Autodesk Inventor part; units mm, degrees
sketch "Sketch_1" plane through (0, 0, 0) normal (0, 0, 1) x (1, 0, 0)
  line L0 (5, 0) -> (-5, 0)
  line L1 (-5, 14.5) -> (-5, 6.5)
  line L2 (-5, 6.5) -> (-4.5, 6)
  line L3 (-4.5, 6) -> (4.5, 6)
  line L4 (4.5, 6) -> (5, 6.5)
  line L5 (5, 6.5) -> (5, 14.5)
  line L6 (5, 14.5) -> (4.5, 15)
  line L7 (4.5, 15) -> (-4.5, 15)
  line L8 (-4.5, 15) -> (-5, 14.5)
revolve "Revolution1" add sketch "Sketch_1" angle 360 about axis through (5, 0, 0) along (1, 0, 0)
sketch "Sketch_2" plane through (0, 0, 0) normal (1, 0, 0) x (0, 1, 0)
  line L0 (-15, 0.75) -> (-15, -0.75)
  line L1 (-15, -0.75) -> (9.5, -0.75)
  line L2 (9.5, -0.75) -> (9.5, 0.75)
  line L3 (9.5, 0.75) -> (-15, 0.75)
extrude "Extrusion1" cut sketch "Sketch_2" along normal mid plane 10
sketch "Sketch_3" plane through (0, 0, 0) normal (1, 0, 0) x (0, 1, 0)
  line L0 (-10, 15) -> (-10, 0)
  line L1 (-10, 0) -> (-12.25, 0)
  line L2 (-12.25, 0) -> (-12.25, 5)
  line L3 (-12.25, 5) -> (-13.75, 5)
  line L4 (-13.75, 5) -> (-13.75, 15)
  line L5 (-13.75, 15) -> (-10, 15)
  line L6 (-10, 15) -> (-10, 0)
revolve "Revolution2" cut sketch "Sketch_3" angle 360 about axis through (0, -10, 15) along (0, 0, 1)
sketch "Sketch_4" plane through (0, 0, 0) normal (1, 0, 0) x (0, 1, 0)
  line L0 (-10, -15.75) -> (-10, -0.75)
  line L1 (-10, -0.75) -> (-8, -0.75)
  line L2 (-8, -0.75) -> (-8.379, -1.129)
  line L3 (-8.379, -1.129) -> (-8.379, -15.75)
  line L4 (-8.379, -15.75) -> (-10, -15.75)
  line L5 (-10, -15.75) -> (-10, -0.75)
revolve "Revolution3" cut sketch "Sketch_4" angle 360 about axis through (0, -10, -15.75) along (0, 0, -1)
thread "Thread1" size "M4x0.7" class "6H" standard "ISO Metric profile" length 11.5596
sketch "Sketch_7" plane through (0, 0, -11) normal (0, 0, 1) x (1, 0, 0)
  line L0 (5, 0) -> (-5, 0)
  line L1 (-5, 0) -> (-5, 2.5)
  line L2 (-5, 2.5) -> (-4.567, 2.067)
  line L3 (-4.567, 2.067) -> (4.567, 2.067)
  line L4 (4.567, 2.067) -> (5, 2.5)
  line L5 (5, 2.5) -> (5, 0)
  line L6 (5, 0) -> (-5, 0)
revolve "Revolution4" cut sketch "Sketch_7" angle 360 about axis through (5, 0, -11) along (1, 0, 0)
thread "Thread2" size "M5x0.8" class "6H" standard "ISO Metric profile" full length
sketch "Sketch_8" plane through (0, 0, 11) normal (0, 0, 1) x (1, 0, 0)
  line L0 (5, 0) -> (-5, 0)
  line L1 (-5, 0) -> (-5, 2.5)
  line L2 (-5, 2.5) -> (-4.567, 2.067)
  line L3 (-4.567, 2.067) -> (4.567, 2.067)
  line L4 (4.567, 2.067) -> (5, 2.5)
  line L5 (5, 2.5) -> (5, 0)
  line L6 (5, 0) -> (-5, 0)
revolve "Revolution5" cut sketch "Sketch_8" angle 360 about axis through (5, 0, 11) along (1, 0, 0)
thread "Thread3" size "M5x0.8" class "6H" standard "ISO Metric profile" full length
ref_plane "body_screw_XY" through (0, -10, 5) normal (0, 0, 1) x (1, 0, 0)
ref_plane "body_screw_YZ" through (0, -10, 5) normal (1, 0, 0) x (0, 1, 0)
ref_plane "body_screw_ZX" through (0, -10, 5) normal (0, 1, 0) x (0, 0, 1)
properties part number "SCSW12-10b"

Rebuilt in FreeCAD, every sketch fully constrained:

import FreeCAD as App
import Part
import Sketcher
from FreeCAD import Vector
Q = App.Units.Quantity

doc = App.newDocument("Part")
body = doc.addObject("PartDesign::Body", "Body")

sketch1 = body.newObject("Sketcher::SketchObject", "Sketch")
sketch1.AttachmentSupport = (doc.getObject("XY_Plane"), [""])
sketch1.MapMode = "FlatFace"
sketch1.addGeometry([
    Part.LineSegment(Vector(-4.5, 15, 0), Vector(-5, 14.5, 0)),
    Part.LineSegment(Vector(-5, 14.5, 0), Vector(-5, 6.5, 0)),
    Part.LineSegment(Vector(-5, 6.5, 0), Vector(-4.5, 6, 0)),
    Part.LineSegment(Vector(-4.5, 6, 0), Vector(4.5, 6, 0)),
    Part.LineSegment(Vector(4.5, 6, 0), Vector(5, 6.5, 0)),
    Part.LineSegment(Vector(5, 6.5, 0), Vector(5, 14.5, 0)),
    Part.LineSegment(Vector(5, 14.5, 0), Vector(4.5, 15, 0)),
    Part.LineSegment(Vector(4.5, 15, 0), Vector(-4.5, 15, 0)),
], False)
sketch1.addConstraint([
    Sketcher.Constraint("Coincident", 0, 2, 1, 1),
    Sketcher.Constraint("Coincident", 1, 2, 2, 1),
    Sketcher.Constraint("Coincident", 2, 2, 3, 1),
    Sketcher.Constraint("Coincident", 3, 2, 4, 1),
    Sketcher.Constraint("Coincident", 4, 2, 5, 1),
    Sketcher.Constraint("Coincident", 5, 2, 6, 1),
    Sketcher.Constraint("Coincident", 6, 2, 7, 1),
    Sketcher.Constraint("Coincident", 7, 2, 0, 1),
    Sketcher.Constraint("Vertical", 1),
    Sketcher.Constraint("Horizontal", 3),
    Sketcher.Constraint("Vertical", 5),
    Sketcher.Constraint("Horizontal", 7),
    Sketcher.Constraint("Symmetric", 1, 2, 4, 2, -2),
    Sketcher.Constraint("Perpendicular", 0, 2),
    Sketcher.Constraint("Perpendicular", 2, 4),
    Sketcher.Constraint("Perpendicular", 4, 6),
    Sketcher.Constraint("Horizontal", 0, 2, 5, 2),
    Sketcher.Constraint("Vertical", 3, 2, 6, 2),
    Sketcher.Constraint("Vertical", 2, 2, 7, 2),
    Sketcher.Constraint("DistanceX", 3, 1, 3, 2, Q("9 mm")),
    Sketcher.Constraint("DistanceY", 1, 2, 1, 1, Q("8 mm")),
    Sketcher.Constraint("DistanceX", 0, 2, -1, 1, Q("5 mm")),
    Sketcher.Constraint("DistanceY", -1, 1, 2, 2, Q("6 mm")),
])
revolution = body.newObject("PartDesign::Revolution", "Revolution")
revolution.Profile = sketch1
revolution.ReferenceAxis = (sketch1, ["H_Axis"])
revolution.Angle = 360

sketch2 = body.newObject("Sketcher::SketchObject", "Sketch001")
sketch2.AttachmentSupport = (doc.getObject("YZ_Plane"), [""])
sketch2.MapMode = "FlatFace"
sketch2.addGeometry([
    Part.LineSegment(Vector(9.5, 0.8, 0), Vector(-15, 0.8, 0)),
    Part.LineSegment(Vector(-15, 0.8, 0), Vector(-15, -0.8, 0)),
    Part.LineSegment(Vector(-15, -0.8, 0), Vector(9.5, -0.8, 0)),
    Part.LineSegment(Vector(9.5, -0.8, 0), Vector(9.5, 0.8, 0)),
], False)
sketch2.addConstraint([
    Sketcher.Constraint("Coincident", 0, 2, 1, 1),
    Sketcher.Constraint("Coincident", 1, 2, 2, 1),
    Sketcher.Constraint("Coincident", 2, 2, 3, 1),
    Sketcher.Constraint("Coincident", 3, 2, 0, 1),
    Sketcher.Constraint("Horizontal", 0),
    Sketcher.Constraint("Vertical", 1),
    Sketcher.Constraint("Horizontal", 2),
    Sketcher.Constraint("Vertical", 3),
    Sketcher.Constraint("DistanceX", 0, 2, 0, 1, Q("24.5 mm")),
    Sketcher.Constraint("DistanceY", 1, 2, 1, 1, Q("1.5 mm")),
    Sketcher.Constraint("DistanceX", 0, 2, -1, 1, Q("15 mm")),
    Sketcher.Constraint("DistanceY", -1, 1, 0, 2, Q("0.75 mm")),
])
pocket1 = body.newObject("PartDesign::Pocket", "Pocket")
pocket1.Profile = sketch2
pocket1.Length = 10
pocket1.Midplane = True

sketch3 = body.newObject("Sketcher::SketchObject", "Sketch002")
sketch3.AttachmentSupport = (doc.getObject("YZ_Plane"), [""])
sketch3.MapMode = "FlatFace"
sketch3.addGeometry([
    Part.LineSegment(Vector(-10, 0, 0), Vector(-10, 15, 0)),
    Part.LineSegment(Vector(-10, 15, 0), Vector(-13.8, 15, 0)),
    Part.LineSegment(Vector(-13.8, 15, 0), Vector(-13.8, 5, 0)),
    Part.LineSegment(Vector(-13.8, 5, 0), Vector(-12.2, 5, 0)),
    Part.LineSegment(Vector(-12.2, 5, 0), Vector(-12.2, 0, 0)),
    Part.LineSegment(Vector(-12.2, 0, 0), Vector(-10, 0, 0)),
], False)
sketch3.addGeometry(Part.LineSegment(Vector(-10, 0, 0), Vector(-10, 15, 0)), True)
sketch3.addConstraint([
    Sketcher.Constraint("Coincident", 0, 2, 1, 1),
    Sketcher.Constraint("Coincident", 1, 2, 2, 1),
    Sketcher.Constraint("Coincident", 2, 2, 3, 1),
    Sketcher.Constraint("Coincident", 3, 2, 4, 1),
    Sketcher.Constraint("Coincident", 4, 2, 5, 1),
    Sketcher.Constraint("Coincident", 5, 2, 0, 1),
    Sketcher.Constraint("Vertical", 0),
    Sketcher.Constraint("Horizontal", 1),
    Sketcher.Constraint("Vertical", 2),
    Sketcher.Constraint("Horizontal", 3),
    Sketcher.Constraint("Vertical", 4),
    Sketcher.Constraint("Horizontal", 5),
    Sketcher.Constraint("Vertical", 6),
    Sketcher.Constraint("Coincident", 6, 1, 5, 2),
    Sketcher.Constraint("PointOnObject", 4, 2, -1),
    Sketcher.Constraint("Horizontal", 1, 2, 6, 2),
    Sketcher.Constraint("DistanceY", 0, 1, 0, 2, Q("15 mm")),
    Sketcher.Constraint("DistanceY", 2, 2, 2, 1, Q("10 mm")),
    Sketcher.Constraint("DistanceX", 3, 1, 3, 2, Q("1.5 mm")),
    Sketcher.Constraint("DistanceX", 0, 2, -1, 1, Q("10 mm")),
    Sketcher.Constraint("DistanceX", 1, 2, 1, 1, Q("3.75 mm")),
])
groove = body.newObject("PartDesign::Groove", "Groove")
groove.Profile = sketch3
groove.ReferenceAxis = (sketch3, ["Axis0"])
groove.Angle = 360

sketch4 = body.newObject("Sketcher::SketchObject", "Sketch003")
sketch4.AttachmentSupport = (doc.getObject("YZ_Plane"), [""])
sketch4.MapMode = "FlatFace"
sketch4.addGeometry([
    Part.LineSegment(Vector(-10, -0.8, 0), Vector(-10, -15.8, 0)),
    Part.LineSegment(Vector(-10, -15.8, 0), Vector(-8.4, -15.8, 0)),
    Part.LineSegment(Vector(-8.4, -15.8, 0), Vector(-8.4, -1.1, 0)),
    Part.LineSegment(Vector(-8.4, -1.1, 0), Vector(-8, -0.8, 0)),
    Part.LineSegment(Vector(-8, -0.8, 0), Vector(-10, -0.8, 0)),
], False)
sketch4.addGeometry(Part.LineSegment(Vector(-10, -0.8, 0), Vector(-10, -15.8, 0)), True)
sketch4.addConstraint([
    Sketcher.Constraint("Coincident", 0, 2, 1, 1),
    Sketcher.Constraint("Coincident", 1, 2, 2, 1),
    Sketcher.Constraint("Coincident", 2, 2, 3, 1),
    Sketcher.Constraint("Coincident", 3, 2, 4, 1),
    Sketcher.Constraint("Coincident", 4, 2, 0, 1),
    Sketcher.Constraint("Vertical", 0),
    Sketcher.Constraint("Horizontal", 1),
    Sketcher.Constraint("Vertical", 2),
    Sketcher.Constraint("Horizontal", 4),
    Sketcher.Constraint("Vertical", 5),
    Sketcher.Constraint("Coincident", 5, 1, 4, 2),
    Sketcher.Constraint("Horizontal", 1, 2, 5, 2),
    Sketcher.Constraint("DistanceX", 4, 2, 4, 1, Q("2 mm")),
    Sketcher.Constraint("DistanceY", 0, 2, 0, 1, Q("15 mm")),
    Sketcher.Constraint("Angle", 3, Q("45 deg")),
    Sketcher.Constraint("DistanceX", 0, 2, -1, 1, Q("10 mm")),
    Sketcher.Constraint("DistanceX", 1, 1, 1, 2, Q("1.621 mm")),
    Sketcher.Constraint("DistanceY", 0, 2, -1, 1, Q("15.75 mm")),
])
groove2 = body.newObject("PartDesign::Groove", "Groove001")
groove2.Profile = sketch4
groove2.ReferenceAxis = (sketch4, ["Axis0"])
groove2.Angle = 360

sketch5 = body.newObject("Sketcher::SketchObject", "Sketch004")
sketch5.AttachmentSupport = (doc.getObject("XY_Plane"), [""])
sketch5.MapMode = "FlatFace"
sketch5.AttachmentOffset = App.Placement(Vector(0, 0, -11), App.Rotation())
sketch5.addGeometry([
    Part.LineSegment(Vector(-5, 0, 0), Vector(5, 0, 0)),
    Part.LineSegment(Vector(5, 0, 0), Vector(5, 2.5, 0)),
    Part.LineSegment(Vector(5, 2.5, 0), Vector(4.6, 2.1, 0)),
    Part.LineSegment(Vector(4.6, 2.1, 0), Vector(-4.6, 2.1, 0)),
    Part.LineSegment(Vector(-4.6, 2.1, 0), Vector(-5, 2.5, 0)),
    Part.LineSegment(Vector(-5, 2.5, 0), Vector(-5, 0, 0)),
], False)
sketch5.addConstraint([
    Sketcher.Constraint("Coincident", 0, 2, 1, 1),
    Sketcher.Constraint("Coincident", 1, 2, 2, 1),
    Sketcher.Constraint("Coincident", 2, 2, 3, 1),
    Sketcher.Constraint("Coincident", 3, 2, 4, 1),
    Sketcher.Constraint("Coincident", 4, 2, 5, 1),
    Sketcher.Constraint("Coincident", 5, 2, 0, 1),
    Sketcher.Constraint("Horizontal", 0),
    Sketcher.Constraint("Vertical", 1),
    Sketcher.Constraint("Horizontal", 3),
    Sketcher.Constraint("Vertical", 5),
    Sketcher.Constraint("Symmetric", 0, 2, 5, 2, -1, 1),
    Sketcher.Constraint("Perpendicular", 2, 4),
    Sketcher.Constraint("Horizontal", 1, 2, 4, 2),
    Sketcher.Constraint("Equal", 2, 4),
    Sketcher.Constraint("DistanceX", 0, 1, 0, 2, Q("10 mm")),
    Sketcher.Constraint("DistanceY", 1, 1, 1, 2, Q("2.5 mm")),
    Sketcher.Constraint("DistanceX", 3, 2, 3, 1, Q("9.134 mm")),
])
groove3 = body.newObject("PartDesign::Groove", "Groove002")
groove3.Profile = sketch5
groove3.ReferenceAxis = (sketch5, ["H_Axis"])
groove3.Angle = 360

sketch6 = body.newObject("Sketcher::SketchObject", "Sketch005")
sketch6.AttachmentSupport = (doc.getObject("XY_Plane"), [""])
sketch6.MapMode = "FlatFace"
sketch6.AttachmentOffset = App.Placement(Vector(0, 0, 11), App.Rotation())
sketch6.addGeometry([
    Part.LineSegment(Vector(-5, 0, 0), Vector(5, 0, 0)),
    Part.LineSegment(Vector(5, 0, 0), Vector(5, 2.5, 0)),
    Part.LineSegment(Vector(5, 2.5, 0), Vector(4.6, 2.1, 0)),
    Part.LineSegment(Vector(4.6, 2.1, 0), Vector(-4.6, 2.1, 0)),
    Part.LineSegment(Vector(-4.6, 2.1, 0), Vector(-5, 2.5, 0)),
    Part.LineSegment(Vector(-5, 2.5, 0), Vector(-5, 0, 0)),
], False)
sketch6.addConstraint([
    Sketcher.Constraint("Coincident", 0, 2, 1, 1),
    Sketcher.Constraint("Coincident", 1, 2, 2, 1),
    Sketcher.Constraint("Coincident", 2, 2, 3, 1),
    Sketcher.Constraint("Coincident", 3, 2, 4, 1),
    Sketcher.Constraint("Coincident", 4, 2, 5, 1),
    Sketcher.Constraint("Coincident", 5, 2, 0, 1),
    Sketcher.Constraint("Horizontal", 0),
    Sketcher.Constraint("Vertical", 1),
    Sketcher.Constraint("Horizontal", 3),
    Sketcher.Constraint("Vertical", 5),
    Sketcher.Constraint("Symmetric", 0, 2, 5, 2, -1, 1),
    Sketcher.Constraint("Perpendicular", 2, 4),
    Sketcher.Constraint("Horizontal", 1, 2, 4, 2),
    Sketcher.Constraint("Equal", 2, 4),
    Sketcher.Constraint("DistanceX", 0, 1, 0, 2, Q("10 mm")),
    Sketcher.Constraint("DistanceY", 1, 1, 1, 2, Q("2.5 mm")),
    Sketcher.Constraint("DistanceX", 3, 2, 3, 1, Q("9.134 mm")),
])
groove4 = body.newObject("PartDesign::Groove", "Groove003")
groove4.Profile = sketch6
groove4.ReferenceAxis = (sketch6, ["H_Axis"])
groove4.Angle = 360

doc.recompute()
